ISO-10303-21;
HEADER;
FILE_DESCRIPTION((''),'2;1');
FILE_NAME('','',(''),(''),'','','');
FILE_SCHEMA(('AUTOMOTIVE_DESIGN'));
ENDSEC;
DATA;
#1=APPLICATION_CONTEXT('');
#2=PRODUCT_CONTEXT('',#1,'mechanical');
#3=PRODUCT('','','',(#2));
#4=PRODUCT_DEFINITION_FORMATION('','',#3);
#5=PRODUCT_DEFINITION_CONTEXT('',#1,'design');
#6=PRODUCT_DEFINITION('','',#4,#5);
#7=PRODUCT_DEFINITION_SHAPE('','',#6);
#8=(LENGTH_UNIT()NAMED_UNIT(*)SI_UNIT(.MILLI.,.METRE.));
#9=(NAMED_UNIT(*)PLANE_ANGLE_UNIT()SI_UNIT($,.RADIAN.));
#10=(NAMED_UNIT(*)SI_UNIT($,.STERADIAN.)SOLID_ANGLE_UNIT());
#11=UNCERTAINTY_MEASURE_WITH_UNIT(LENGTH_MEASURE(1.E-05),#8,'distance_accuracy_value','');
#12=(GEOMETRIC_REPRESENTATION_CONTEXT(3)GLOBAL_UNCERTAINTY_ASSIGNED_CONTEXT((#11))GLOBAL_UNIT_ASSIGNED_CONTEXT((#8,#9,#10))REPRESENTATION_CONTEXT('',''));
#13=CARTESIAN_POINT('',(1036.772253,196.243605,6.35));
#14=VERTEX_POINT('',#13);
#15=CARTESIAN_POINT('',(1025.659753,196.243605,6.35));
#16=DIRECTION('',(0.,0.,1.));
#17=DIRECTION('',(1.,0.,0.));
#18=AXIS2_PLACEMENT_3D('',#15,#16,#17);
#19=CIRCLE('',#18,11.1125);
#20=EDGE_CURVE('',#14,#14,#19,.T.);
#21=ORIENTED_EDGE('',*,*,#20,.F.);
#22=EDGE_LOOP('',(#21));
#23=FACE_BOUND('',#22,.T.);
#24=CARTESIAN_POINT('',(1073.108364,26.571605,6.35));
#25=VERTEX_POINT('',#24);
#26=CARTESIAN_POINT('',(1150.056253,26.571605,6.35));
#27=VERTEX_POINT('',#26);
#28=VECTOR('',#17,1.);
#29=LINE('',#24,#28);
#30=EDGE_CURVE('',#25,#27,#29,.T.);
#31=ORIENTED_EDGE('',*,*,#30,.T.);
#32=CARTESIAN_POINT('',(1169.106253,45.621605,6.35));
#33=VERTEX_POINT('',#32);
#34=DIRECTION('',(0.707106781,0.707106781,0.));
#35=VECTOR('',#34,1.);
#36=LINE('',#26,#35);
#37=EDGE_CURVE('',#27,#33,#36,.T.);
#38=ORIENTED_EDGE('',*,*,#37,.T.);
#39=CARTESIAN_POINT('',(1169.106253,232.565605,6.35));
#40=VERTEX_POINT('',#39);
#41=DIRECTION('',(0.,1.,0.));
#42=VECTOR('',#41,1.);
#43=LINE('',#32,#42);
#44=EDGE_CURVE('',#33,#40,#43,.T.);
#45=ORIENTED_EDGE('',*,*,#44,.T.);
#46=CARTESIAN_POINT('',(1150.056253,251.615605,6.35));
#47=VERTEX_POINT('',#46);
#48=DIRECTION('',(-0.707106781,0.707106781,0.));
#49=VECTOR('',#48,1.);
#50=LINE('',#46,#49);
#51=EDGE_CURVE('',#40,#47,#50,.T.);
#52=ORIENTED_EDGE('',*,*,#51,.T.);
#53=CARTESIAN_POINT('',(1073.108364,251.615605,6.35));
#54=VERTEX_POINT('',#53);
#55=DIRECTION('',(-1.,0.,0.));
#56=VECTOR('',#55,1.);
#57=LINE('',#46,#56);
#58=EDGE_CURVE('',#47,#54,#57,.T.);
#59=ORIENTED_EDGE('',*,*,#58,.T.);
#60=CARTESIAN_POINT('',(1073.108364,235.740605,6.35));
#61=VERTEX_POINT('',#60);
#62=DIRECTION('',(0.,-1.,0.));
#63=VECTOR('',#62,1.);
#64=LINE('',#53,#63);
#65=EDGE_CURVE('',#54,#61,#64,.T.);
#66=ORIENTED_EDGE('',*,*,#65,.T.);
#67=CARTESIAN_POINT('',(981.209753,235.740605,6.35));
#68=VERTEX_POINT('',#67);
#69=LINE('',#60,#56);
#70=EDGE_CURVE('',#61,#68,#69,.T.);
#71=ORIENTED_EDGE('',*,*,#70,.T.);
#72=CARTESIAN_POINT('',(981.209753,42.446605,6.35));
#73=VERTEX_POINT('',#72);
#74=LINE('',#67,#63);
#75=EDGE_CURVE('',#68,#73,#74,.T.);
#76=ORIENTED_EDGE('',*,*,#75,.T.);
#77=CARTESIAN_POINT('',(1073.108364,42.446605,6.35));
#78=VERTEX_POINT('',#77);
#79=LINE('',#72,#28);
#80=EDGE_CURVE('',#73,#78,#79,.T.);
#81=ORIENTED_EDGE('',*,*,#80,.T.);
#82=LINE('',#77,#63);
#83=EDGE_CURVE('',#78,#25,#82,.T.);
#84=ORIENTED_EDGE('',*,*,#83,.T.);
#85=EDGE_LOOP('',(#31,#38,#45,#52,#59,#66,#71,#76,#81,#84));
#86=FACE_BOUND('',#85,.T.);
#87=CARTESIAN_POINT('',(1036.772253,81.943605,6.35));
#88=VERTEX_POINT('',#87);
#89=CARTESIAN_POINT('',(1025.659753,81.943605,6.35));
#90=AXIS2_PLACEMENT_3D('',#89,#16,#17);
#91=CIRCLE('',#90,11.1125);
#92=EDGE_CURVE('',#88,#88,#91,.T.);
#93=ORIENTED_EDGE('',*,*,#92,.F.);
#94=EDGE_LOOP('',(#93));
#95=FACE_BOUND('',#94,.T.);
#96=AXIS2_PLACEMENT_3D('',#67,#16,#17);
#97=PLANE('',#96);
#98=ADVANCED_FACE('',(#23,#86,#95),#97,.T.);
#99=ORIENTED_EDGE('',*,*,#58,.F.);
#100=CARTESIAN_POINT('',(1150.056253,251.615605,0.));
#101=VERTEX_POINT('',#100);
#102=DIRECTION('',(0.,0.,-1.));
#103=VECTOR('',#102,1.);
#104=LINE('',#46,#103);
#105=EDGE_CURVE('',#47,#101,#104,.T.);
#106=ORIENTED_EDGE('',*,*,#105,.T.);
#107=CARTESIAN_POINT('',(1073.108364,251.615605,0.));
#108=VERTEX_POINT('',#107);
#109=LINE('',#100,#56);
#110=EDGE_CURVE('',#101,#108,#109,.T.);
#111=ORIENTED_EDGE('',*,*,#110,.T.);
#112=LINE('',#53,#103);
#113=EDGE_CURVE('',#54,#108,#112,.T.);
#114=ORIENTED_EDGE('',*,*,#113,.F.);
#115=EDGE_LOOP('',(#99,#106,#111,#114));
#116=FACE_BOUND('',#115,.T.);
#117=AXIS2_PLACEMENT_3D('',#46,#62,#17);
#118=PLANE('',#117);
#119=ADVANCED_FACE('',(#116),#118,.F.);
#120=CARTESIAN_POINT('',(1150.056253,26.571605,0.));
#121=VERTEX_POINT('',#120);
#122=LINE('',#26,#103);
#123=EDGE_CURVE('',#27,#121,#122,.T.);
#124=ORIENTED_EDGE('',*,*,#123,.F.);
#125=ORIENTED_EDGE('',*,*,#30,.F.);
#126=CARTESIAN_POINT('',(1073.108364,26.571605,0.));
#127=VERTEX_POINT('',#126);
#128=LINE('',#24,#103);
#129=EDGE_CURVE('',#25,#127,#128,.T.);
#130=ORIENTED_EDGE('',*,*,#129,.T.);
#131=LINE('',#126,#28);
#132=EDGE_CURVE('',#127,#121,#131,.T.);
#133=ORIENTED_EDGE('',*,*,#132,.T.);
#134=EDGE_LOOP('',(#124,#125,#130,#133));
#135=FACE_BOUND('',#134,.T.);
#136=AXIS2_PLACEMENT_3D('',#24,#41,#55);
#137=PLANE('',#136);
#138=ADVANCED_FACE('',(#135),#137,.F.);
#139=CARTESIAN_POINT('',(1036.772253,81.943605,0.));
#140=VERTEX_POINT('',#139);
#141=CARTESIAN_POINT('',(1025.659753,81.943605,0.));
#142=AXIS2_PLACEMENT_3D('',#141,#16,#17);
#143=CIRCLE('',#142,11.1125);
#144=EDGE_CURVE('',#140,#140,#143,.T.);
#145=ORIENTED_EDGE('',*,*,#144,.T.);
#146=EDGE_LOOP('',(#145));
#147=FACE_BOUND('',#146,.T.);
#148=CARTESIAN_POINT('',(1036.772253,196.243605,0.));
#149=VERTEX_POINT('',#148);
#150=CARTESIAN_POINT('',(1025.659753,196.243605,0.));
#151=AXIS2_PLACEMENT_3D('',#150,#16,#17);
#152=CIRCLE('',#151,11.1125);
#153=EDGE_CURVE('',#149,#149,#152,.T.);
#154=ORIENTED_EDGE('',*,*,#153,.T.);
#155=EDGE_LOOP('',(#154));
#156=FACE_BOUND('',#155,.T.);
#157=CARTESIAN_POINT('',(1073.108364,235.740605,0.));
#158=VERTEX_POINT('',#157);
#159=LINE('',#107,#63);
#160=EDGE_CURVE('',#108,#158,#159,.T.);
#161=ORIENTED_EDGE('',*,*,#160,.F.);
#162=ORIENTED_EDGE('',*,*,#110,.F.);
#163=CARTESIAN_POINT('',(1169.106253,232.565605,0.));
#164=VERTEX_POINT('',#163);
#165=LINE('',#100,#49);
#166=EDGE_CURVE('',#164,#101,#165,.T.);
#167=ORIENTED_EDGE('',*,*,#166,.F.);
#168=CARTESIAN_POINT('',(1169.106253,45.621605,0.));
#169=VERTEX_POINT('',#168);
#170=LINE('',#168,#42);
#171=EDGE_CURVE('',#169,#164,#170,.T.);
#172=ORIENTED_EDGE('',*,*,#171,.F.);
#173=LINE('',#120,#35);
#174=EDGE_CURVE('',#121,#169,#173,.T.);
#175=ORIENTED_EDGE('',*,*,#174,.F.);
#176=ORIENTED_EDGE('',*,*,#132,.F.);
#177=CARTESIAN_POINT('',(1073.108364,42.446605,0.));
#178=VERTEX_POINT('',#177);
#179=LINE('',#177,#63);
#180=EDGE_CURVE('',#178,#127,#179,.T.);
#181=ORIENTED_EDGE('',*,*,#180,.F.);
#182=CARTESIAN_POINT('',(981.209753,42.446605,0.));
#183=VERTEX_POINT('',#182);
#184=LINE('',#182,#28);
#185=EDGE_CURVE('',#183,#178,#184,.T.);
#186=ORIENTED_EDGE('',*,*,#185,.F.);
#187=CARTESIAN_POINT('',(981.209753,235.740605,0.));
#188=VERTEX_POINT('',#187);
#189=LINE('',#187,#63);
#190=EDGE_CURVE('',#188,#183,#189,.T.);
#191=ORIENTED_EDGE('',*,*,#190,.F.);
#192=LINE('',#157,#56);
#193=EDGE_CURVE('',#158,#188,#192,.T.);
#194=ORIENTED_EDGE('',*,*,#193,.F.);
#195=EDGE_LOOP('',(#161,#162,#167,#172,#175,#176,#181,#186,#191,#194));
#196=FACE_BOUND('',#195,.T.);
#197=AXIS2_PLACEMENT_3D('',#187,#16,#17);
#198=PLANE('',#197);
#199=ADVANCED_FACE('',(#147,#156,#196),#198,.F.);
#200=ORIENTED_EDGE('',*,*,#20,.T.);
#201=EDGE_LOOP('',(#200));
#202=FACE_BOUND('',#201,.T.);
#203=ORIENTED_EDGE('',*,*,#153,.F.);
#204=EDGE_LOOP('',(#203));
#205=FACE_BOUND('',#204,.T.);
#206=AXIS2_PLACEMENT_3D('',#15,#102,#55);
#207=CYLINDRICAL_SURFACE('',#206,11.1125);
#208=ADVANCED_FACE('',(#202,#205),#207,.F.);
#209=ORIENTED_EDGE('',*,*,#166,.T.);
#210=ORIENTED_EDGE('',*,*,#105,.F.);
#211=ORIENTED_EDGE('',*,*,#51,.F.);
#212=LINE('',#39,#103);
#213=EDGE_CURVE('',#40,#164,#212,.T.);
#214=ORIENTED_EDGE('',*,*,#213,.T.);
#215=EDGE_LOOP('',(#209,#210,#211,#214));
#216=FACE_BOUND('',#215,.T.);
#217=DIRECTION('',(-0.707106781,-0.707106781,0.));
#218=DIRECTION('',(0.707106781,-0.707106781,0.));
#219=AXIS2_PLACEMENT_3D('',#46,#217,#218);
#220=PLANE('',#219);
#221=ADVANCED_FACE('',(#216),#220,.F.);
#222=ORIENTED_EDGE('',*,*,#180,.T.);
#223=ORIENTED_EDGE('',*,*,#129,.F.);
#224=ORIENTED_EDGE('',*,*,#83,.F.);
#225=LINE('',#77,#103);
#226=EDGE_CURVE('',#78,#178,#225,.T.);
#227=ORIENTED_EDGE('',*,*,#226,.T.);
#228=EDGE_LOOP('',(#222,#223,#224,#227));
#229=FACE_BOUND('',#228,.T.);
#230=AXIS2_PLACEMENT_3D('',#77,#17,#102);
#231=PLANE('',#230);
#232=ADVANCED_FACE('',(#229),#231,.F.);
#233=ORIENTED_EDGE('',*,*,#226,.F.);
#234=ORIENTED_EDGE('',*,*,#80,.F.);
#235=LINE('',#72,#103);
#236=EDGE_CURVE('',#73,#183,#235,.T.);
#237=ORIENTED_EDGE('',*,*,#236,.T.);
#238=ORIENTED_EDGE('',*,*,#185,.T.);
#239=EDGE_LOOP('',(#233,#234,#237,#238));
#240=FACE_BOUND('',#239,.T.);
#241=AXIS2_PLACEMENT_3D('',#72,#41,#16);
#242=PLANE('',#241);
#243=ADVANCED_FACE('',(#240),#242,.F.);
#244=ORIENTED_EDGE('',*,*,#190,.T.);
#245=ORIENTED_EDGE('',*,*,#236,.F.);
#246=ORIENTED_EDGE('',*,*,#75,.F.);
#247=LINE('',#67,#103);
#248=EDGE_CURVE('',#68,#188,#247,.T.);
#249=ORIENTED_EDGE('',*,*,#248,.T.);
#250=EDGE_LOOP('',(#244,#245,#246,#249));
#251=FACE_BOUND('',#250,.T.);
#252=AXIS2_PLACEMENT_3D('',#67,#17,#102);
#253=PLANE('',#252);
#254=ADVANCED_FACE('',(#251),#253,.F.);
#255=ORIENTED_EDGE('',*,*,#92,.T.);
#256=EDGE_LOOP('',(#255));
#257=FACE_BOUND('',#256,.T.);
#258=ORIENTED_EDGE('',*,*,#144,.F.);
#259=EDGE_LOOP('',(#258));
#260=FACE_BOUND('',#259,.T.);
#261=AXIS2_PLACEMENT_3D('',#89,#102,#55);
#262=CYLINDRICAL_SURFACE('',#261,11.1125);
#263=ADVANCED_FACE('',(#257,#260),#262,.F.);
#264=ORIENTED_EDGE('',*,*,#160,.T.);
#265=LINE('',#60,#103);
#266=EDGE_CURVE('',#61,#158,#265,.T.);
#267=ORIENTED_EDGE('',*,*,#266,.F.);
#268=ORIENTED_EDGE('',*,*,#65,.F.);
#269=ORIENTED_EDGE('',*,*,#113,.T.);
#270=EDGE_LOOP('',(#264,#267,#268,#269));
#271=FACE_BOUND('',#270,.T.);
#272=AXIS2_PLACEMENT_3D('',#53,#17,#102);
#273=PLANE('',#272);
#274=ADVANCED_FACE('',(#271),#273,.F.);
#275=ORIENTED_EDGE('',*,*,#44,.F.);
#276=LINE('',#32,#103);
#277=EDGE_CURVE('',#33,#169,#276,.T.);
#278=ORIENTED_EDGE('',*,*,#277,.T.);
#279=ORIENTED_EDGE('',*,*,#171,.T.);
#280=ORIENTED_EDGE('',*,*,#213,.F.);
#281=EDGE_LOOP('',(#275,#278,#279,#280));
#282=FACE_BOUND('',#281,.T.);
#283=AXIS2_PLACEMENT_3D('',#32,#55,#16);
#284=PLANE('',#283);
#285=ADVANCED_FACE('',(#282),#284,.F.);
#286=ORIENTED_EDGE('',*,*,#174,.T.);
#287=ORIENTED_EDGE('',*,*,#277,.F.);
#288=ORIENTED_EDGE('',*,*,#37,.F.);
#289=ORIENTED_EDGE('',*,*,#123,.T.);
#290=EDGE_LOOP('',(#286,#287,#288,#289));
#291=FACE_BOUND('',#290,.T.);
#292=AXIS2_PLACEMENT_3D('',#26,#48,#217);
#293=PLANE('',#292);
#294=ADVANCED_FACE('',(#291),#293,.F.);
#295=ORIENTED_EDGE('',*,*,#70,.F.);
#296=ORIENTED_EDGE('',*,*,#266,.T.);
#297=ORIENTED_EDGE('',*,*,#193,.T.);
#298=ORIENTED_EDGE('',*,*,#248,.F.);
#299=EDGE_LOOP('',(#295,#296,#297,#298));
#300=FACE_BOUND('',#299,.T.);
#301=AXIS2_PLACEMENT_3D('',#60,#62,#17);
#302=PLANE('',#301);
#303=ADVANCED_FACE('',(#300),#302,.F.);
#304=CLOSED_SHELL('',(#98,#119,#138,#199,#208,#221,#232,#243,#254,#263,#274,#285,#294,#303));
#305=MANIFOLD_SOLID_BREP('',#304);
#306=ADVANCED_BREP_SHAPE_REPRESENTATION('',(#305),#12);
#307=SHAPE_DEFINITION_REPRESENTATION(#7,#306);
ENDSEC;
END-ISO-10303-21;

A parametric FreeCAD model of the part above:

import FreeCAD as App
import Part
import Sketcher
from FreeCAD import Vector
Q = App.Units.Quantity


def add_polygon(sketch, points):
    """Adds a closed chain of lines whose ends are joined by coincident constraints."""
    first, n = sketch.GeometryCount, len(points)
    for a, b in zip(points, points[1:] + points[:1]):
        sketch.addGeometry(Part.LineSegment(App.Vector(*a, 0), App.Vector(*b, 0)), False)
    for i in range(n):
        sketch.addConstraint(Sketcher.Constraint("Coincident", first + i, 2, first + (i + 1) % n, 1))

doc = App.newDocument("Part")
body = doc.addObject("PartDesign::Body", "Body")

# Sketch on XY plane
sketch1 = body.newObject("Sketcher::SketchObject", "Sketch")
sketch1.AttachmentSupport = (doc.getObject("XY_Plane"), [""])
sketch1.MapMode = "FlatFace"
add_polygon(sketch1, [(981, 236), (981, 42), (1073, 42), (1073, 27), (1150, 27), (1169, 46), (1169, 233), (1150, 252), (1073, 252), (1073, 236)])  # lines 0-9
sketch1.addGeometry(Part.Circle(Vector(1026, 82, 0), Vector(0, 0, 1), 11), False)  # 10
sketch1.addGeometry(Part.Circle(Vector(1026, 196, 0), Vector(0, 0, 1), 11), False)  # 11
sketch1.addConstraint(Sketcher.Constraint("Vertical", 0))
sketch1.addConstraint(Sketcher.Constraint("Horizontal", 1))
sketch1.addConstraint(Sketcher.Constraint("Vertical", 2))
sketch1.addConstraint(Sketcher.Constraint("Horizontal", 3))
sketch1.addConstraint(Sketcher.Constraint("Vertical", 5))
sketch1.addConstraint(Sketcher.Constraint("Horizontal", 7))
sketch1.addConstraint(Sketcher.Constraint("Vertical", 8))
sketch1.addConstraint(Sketcher.Constraint("Horizontal", 9))
sketch1.addConstraint(Sketcher.Constraint("Equal", 10, 11))
sketch1.addConstraint(Sketcher.Constraint("Perpendicular", 4, 6))
sketch1.addConstraint(Sketcher.Constraint("Vertical", 10, 3, 11, 3))
sketch1.addConstraint(Sketcher.Constraint("Vertical", 3, 2, 6, 2))
sketch1.addConstraint(Sketcher.Constraint("Vertical", 2, 2, 7, 2))
sketch1.addConstraint(Sketcher.Constraint("Equal", 2, 8))
sketch1.addConstraint(Sketcher.Constraint("Equal", 4, 6))
sketch1.addConstraint(Sketcher.Constraint("Diameter", 10, Q("0.875 in")))
sketch1.addConstraint(Sketcher.Constraint("DistanceY", 0, 2, 0, 1, Q("7.61 in")))
sketch1.addConstraint(Sketcher.Constraint("DistanceY", 5, 1, 5, 2, Q("7.36 in")))
sketch1.addConstraint(Sketcher.Constraint("DistanceY", 10, 3, 11, 3, Q("4.5 in")))
sketch1.addConstraint(Sketcher.Constraint("DistanceY", 2, 2, 2, 1, Q("0.625 in")))
sketch1.addConstraint(Sketcher.Constraint("DistanceX", 0, 2, 10, 3, Q("1.75 in")))
sketch1.addConstraint(Sketcher.Constraint("DistanceY", 2, 2, 10, 3, Q("2.18 in")))
sketch1.addConstraint(Sketcher.Constraint("DistanceX", 10, 3, 3, 2, Q("4.8975 in")))
sketch1.addConstraint(Sketcher.Constraint("DistanceX", 1, 1, 1, 2, 91.898611))
sketch1.addConstraint(Sketcher.Constraint("DistanceX", -1, 1, 10, 3, 1025.659753))
sketch1.addConstraint(Sketcher.Constraint("DistanceY", -1, 1, 10, 3, 81.943605))
pad1 = body.newObject("PartDesign::Pad", "Pad")
pad1.Profile = sketch1
pad1.Length = Q("0.25 in")

doc.recompute()
